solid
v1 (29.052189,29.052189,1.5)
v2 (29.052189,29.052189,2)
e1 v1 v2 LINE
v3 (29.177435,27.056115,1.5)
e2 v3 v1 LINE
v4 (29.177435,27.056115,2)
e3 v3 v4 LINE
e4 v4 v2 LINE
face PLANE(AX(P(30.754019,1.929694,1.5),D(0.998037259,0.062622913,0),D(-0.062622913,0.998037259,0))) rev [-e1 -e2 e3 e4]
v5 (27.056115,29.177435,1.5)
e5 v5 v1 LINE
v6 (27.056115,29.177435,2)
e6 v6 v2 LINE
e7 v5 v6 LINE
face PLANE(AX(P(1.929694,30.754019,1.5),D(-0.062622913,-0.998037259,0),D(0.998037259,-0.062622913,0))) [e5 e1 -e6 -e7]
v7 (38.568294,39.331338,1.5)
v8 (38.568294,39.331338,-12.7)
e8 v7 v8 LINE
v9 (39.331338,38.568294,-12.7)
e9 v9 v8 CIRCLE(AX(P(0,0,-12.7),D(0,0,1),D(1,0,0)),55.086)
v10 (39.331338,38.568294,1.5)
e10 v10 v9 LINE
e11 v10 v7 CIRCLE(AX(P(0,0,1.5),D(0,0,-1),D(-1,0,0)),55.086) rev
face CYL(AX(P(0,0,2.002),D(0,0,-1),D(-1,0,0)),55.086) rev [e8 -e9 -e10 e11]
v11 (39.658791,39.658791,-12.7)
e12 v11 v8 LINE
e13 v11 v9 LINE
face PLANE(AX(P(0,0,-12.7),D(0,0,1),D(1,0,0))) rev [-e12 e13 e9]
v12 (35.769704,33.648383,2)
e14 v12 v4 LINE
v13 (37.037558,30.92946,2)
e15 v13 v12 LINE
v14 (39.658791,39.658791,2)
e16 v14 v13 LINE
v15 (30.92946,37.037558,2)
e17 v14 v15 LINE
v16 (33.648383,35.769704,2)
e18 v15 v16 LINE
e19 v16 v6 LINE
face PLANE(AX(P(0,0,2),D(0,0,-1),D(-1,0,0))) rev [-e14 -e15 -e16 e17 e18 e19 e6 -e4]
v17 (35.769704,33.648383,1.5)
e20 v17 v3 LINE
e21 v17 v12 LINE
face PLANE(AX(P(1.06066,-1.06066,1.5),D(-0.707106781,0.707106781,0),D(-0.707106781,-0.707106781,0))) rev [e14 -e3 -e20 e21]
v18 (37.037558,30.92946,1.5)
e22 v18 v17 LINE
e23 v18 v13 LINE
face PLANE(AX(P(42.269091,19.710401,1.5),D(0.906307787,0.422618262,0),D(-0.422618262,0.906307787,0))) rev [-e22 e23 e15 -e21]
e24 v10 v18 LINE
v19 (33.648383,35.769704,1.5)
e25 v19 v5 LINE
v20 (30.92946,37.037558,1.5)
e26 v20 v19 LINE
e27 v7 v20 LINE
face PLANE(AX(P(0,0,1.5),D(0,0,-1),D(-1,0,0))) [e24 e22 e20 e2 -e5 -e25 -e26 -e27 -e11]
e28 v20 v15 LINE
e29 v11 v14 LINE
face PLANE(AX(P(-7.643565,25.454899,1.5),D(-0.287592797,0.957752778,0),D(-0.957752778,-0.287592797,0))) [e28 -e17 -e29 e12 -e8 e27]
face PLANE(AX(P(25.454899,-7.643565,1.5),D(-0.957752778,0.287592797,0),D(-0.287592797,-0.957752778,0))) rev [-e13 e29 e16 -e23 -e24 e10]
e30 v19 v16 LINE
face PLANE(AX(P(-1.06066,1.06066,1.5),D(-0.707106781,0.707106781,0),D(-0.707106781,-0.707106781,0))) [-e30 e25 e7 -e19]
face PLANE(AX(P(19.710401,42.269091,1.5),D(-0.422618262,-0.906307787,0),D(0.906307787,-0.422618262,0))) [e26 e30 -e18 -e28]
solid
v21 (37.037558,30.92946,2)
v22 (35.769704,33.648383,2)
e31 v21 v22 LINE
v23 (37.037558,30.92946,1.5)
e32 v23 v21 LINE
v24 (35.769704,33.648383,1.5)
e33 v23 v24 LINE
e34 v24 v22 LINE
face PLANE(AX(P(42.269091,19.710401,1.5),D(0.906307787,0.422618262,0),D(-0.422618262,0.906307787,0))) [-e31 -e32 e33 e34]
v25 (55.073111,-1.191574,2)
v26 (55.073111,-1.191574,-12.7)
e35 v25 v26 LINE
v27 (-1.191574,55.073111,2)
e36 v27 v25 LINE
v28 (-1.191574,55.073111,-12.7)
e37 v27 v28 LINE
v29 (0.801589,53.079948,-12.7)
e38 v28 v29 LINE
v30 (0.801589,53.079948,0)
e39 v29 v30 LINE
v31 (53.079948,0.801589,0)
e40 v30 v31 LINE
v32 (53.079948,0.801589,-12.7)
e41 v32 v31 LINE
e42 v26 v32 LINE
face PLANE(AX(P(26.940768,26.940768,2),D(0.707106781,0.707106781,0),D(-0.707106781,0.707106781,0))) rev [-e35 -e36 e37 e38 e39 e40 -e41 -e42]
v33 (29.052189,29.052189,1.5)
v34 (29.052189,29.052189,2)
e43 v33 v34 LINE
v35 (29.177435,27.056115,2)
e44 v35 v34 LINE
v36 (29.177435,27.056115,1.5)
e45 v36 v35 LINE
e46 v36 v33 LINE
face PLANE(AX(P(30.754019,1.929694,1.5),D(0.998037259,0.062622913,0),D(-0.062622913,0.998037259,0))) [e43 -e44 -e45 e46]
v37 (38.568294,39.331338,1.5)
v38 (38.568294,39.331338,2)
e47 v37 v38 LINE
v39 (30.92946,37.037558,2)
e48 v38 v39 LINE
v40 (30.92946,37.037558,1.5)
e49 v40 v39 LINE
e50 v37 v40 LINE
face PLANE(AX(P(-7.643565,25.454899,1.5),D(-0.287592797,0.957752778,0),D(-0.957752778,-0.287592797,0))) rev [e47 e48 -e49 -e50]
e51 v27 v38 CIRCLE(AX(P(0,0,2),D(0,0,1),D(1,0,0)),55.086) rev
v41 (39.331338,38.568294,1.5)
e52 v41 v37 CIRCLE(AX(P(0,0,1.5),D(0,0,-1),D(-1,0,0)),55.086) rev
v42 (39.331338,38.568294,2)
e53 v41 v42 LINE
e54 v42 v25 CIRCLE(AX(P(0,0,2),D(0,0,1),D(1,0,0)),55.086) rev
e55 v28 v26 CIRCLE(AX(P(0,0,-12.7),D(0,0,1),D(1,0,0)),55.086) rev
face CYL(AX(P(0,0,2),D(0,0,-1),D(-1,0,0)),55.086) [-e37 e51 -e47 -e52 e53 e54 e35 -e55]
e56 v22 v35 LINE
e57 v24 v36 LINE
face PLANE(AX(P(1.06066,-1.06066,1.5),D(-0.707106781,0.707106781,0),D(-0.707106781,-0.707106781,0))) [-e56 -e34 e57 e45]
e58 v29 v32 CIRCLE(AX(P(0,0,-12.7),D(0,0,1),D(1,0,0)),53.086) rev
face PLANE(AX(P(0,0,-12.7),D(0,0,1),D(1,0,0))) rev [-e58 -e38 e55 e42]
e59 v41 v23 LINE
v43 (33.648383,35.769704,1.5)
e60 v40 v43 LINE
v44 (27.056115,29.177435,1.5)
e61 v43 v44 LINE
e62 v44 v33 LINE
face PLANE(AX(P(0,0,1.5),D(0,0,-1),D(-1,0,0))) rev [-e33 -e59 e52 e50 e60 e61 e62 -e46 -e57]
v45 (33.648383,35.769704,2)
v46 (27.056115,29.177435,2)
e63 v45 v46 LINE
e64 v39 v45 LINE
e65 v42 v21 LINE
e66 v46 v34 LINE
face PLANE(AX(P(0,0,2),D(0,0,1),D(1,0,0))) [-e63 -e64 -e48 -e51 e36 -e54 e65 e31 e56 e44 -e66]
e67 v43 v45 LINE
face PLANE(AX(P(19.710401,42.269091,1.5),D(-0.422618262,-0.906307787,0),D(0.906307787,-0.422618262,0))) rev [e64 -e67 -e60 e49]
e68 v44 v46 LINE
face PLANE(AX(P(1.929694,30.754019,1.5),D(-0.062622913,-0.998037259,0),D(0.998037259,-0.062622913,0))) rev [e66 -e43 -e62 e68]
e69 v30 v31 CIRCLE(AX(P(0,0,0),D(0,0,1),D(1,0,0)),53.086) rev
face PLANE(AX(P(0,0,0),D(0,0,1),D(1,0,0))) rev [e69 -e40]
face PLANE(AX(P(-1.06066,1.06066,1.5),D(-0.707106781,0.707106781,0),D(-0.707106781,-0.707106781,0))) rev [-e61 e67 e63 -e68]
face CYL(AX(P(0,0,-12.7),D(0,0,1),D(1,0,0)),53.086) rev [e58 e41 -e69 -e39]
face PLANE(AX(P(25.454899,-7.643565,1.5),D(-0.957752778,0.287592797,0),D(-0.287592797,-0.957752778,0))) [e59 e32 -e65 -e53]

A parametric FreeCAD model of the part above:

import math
import FreeCAD as App
import Part
import Sketcher
Q = App.Units.Quantity


def add_polygon(sketch, points):
    """Adds a closed chain of lines whose ends are joined by coincident constraints."""
    first, n = sketch.GeometryCount, len(points)
    for a, b in zip(points, points[1:] + points[:1]):
        sketch.addGeometry(Part.LineSegment(App.Vector(*a, 0), App.Vector(*b, 0)), False)
    for i in range(n):
        sketch.addConstraint(Sketcher.Constraint("Coincident", first + i, 2, first + (i + 1) % n, 1))

doc = App.newDocument("Part")
params = doc.addObject("Spreadsheet::Sheet", "Params")
for row, (alias, value) in enumerate([
    ("pad1_length", "2 mm"),
    ("pad2_length", "12.7 mm"),
    ("sketch3_length", "2 mm"),
    ("sketch3_length2", "3 mm"),
    ("pocket1_length", "0.5 mm"),
    ("sketch4_length", "2 mm"),
    ("sketch4_length2", "3 mm"),
    ("pad3_length", "0.5 mm"),
    ("pad4_length", "14.2 mm"),
], start=1):
    params.set(f"A{row}", alias)
    params.set(f"B{row}", "=" + value)
    params.setAlias(f"B{row}", alias)

body = doc.addObject("PartDesign::Body", "Body")

sketch1 = body.newObject("Sketcher::SketchObject", "Sketch")
sketch1.AttachmentSupport = (doc.getObject("XY_Plane"), [""])
sketch1.MapMode = "FlatFace"
sketch1.addGeometry([
    Part.LineSegment(App.Vector(-1.191574, 55.073111, 0), App.Vector(55.073111, -1.191574, 0)),
    Part.ArcOfCircle(Part.Circle(App.Vector(0, 0, 0), App.Vector(0, 0, 1), 55.086), math.radians(-1.239471), math.radians(91.239471)),
], False)
sketch1.addConstraint([
    Sketcher.Constraint("Coincident", 0, 1, 1, 2),
    Sketcher.Constraint("Coincident", 1, 1, 0, 2),
    Sketcher.Constraint("Coincident", 1, 3, -1, 1),
    Sketcher.Constraint("Angle", 0, Q("-45 deg")),
    Sketcher.Constraint("Radius", 1, Q("55.086 mm")),
    Sketcher.Constraint("Distance", 0, Q("79.570281 mm")),
])
pad1 = body.newObject("PartDesign::Pad", "Pad")
pad1.Profile = sketch1
pad1.setExpression("Length", "Params.pad1_length")

sketch2 = body.newObject("Sketcher::SketchObject", "Sketch001")
sketch2.AttachmentSupport = (doc.getObject("XY_Plane"), [""])
sketch2.MapMode = "FlatFace"
sketch2.addGeometry([
    Part.LineSegment(App.Vector(-1.191574, 55.073111, 0), App.Vector(0.801589, 53.079948, 0)),
    Part.ArcOfCircle(Part.Circle(App.Vector(0, 0, 0), App.Vector(0, 0, 1), 53.086), math.radians(46.757193), math.radians(89.134811)),
    Part.ArcOfCircle(Part.Circle(App.Vector(0, 0, 0), App.Vector(0, 0, 1), 53.086), math.radians(43.242807), math.radians(46.757193)),
    Part.ArcOfCircle(Part.Circle(App.Vector(0, 0, 0), App.Vector(0, 0, 1), 53.086), math.radians(0.865189), math.radians(43.242807)),
    Part.LineSegment(App.Vector(53.079948, 0.801589, 0), App.Vector(55.073111, -1.191574, 0)),
    Part.ArcOfCircle(Part.Circle(App.Vector(0, 0, 0), App.Vector(0, 0, 1), 55.086), math.radians(-1.239471), math.radians(44.438793)),
    Part.ArcOfCircle(Part.Circle(App.Vector(-0.000012, -0.000012, 0), App.Vector(0, 0, 1), 55.086017), math.radians(44.438793), math.radians(45.561207)),
    Part.ArcOfCircle(Part.Circle(App.Vector(0, 0, 0), App.Vector(0, 0, 1), 55.086), math.radians(45.561207), math.radians(91.239471)),
], False)
sketch2.addConstraint([
    Sketcher.Constraint("Coincident", 0, 2, 1, 2),
    Sketcher.Constraint("Tangent", 1, 1, 2, 2),
    Sketcher.Constraint("Tangent", 2, 1, 3, 2),
    Sketcher.Constraint("Coincident", 3, 1, 4, 1),
    Sketcher.Constraint("Coincident", 4, 2, 5, 1),
    Sketcher.Constraint("Tangent", 5, 2, 6, 1),
    Sketcher.Constraint("Tangent", 6, 2, 7, 1),
    Sketcher.Constraint("Coincident", 7, 2, 0, 1),
    Sketcher.Constraint("Coincident", 1, 3, -1, 1),
    Sketcher.Constraint("Coincident", 3, 3, -1, 1),
    Sketcher.Constraint("Coincident", 5, 3, -1, 1),
    Sketcher.Constraint("Coincident", 7, 3, -1, 1),
    Sketcher.Constraint("Parallel", 0, 4),
    Sketcher.Constraint("Equal", 0, 4),
    Sketcher.Constraint("Angle", 0, Q("-45 deg")),
    Sketcher.Constraint("Radius", 1, Q("53.086 mm")),
    Sketcher.Constraint("Radius", 5, Q("55.086 mm")),
    Sketcher.Constraint("Distance", 0, Q("2.818758 mm")),
    Sketcher.Constraint("DistanceX", -1, 1, 1, 1, Q("36.36877 mm")),
    Sketcher.Constraint("DistanceY", -1, 1, 2, 1, Q("36.36877 mm")),
    Sketcher.Constraint("DistanceX", 2, 1, 5, 2, Q("0.66047 mm")),
    Sketcher.Constraint("DistanceY", 1, 1, 6, 2, Q("0.66047 mm")),
])
pad2 = body.newObject("PartDesign::Pad", "Pad001")
pad2.Profile = sketch2
pad2.setExpression("Length", "Params.pad2_length")
pad2.Reversed = True

sketch3 = body.newObject("Sketcher::SketchObject", "Sketch002")
sketch3.AttachmentSupport = (doc.getObject("XY_Plane"), [""])
sketch3.MapMode = "FlatFace"
sketch3.AttachmentOffset = App.Placement(App.Vector(0, 0, 1.5), App.Rotation())
add_polygon(sketch3, [(33.648383, 35.769704), (27.056115, 29.177435), (29.052189, 29.052189), (29.177435, 27.056115), (35.769704, 33.648383), (37.037558, 30.92946), (39.658791, 39.658791), (30.92946, 37.037558)])
sketch3.addConstraint([
    Sketcher.Constraint("Parallel", 0, 3),
    Sketcher.Constraint("Equal", 1, 2),
    Sketcher.Constraint("Equal", 0, 3),
    Sketcher.Constraint("Equal", 5, 6),
    Sketcher.Constraint("Equal", 4, 7),
    Sketcher.Constraint("Angle", 0, Q("-135 deg")),
    Sketcher.Constraint("Angle", 4, Q("-65 deg")),
    Sketcher.Constraint("Angle", 7, Q("-25 deg")),
    Sketcher.Constraint("Distance", 1, Q("2 mm")),
    Sketcher.Constraint("Distance", 4, Q("3 mm")),
    Sketcher.Constraint("DistanceX", 1, 2, 5, 2, Q("10.606602 mm")),
    Sketcher.Constraint("DistanceY", 1, 2, 5, 2, Q("10.606602 mm")),
    Sketcher.Constraint("DistanceX", 6, 2, 4, 2, Q("6.108098 mm")),
    Sketcher.Constraint("Distance", 5, Q("9.114389 mm")),
    Sketcher.Constraint("DistanceX", -1, 1, 1, 2, Q("29.052189 mm")),
    Sketcher.Constraint("DistanceY", -1, 1, 1, 2, Q("29.052189 mm")),
])
sketch3.setExpression("Constraints[16]", "Params.sketch3_length")
sketch3.setExpression("Constraints[17]", "Params.sketch3_length2")
pocket1 = body.newObject("PartDesign::Pocket", "Pocket")
pocket1.Profile = sketch3
pocket1.setExpression("Length", "Params.pocket1_length")
pocket1.Reversed = True
body2 = doc.addObject("PartDesign::Body", "Body001")

sketch4 = body2.newObject("Sketcher::SketchObject", "Sketch003")
sketch4.AttachmentSupport = (doc.getObject("XY_Plane001"), [""])
sketch4.MapMode = "FlatFace"
sketch4.AttachmentOffset = App.Placement(App.Vector(0, 0, 1.5), App.Rotation())
add_polygon(sketch4, [(33.648383, 35.769704), (27.056115, 29.177435), (29.052189, 29.052189), (29.177435, 27.056115), (35.769704, 33.648383), (37.037558, 30.92946), (39.658791, 39.658791), (30.92946, 37.037558)])
sketch4.addConstraint([
    Sketcher.Constraint("Parallel", 0, 3),
    Sketcher.Constraint("Equal", 1, 2),
    Sketcher.Constraint("Equal", 0, 3),
    Sketcher.Constraint("Equal", 5, 6),
    Sketcher.Constraint("Equal", 4, 7),
    Sketcher.Constraint("Angle", 0, Q("-135 deg")),
    Sketcher.Constraint("Angle", 4, Q("-65 deg")),
    Sketcher.Constraint("Angle", 7, Q("-25 deg")),
    Sketcher.Constraint("Distance", 1, Q("2 mm")),
    Sketcher.Constraint("Distance", 4, Q("3 mm")),
    Sketcher.Constraint("DistanceX", 1, 2, 5, 2, Q("10.606602 mm")),
    Sketcher.Constraint("DistanceY", 1, 2, 5, 2, Q("10.606602 mm")),
    Sketcher.Constraint("DistanceX", 6, 2, 4, 2, Q("6.108098 mm")),
    Sketcher.Constraint("Distance", 5, Q("9.114389 mm")),
    Sketcher.Constraint("DistanceX", -1, 1, 1, 2, Q("29.052189 mm")),
    Sketcher.Constraint("DistanceY", -1, 1, 1, 2, Q("29.052189 mm")),
])
sketch4.setExpression("Constraints[16]", "Params.sketch4_length")
sketch4.setExpression("Constraints[17]", "Params.sketch4_length2")
pad3 = body2.newObject("PartDesign::Pad", "Pad002")
pad3.Profile = sketch4
pad3.setExpression("Length", "Params.pad3_length")

sketch5 = body2.newObject("Sketcher::SketchObject", "Sketch004")
sketch5.AttachmentSupport = (doc.getObject("XY_Plane001"), [""])
sketch5.MapMode = "FlatFace"
sketch5.AttachmentOffset = App.Placement(App.Vector(0, 0, -12.7), App.Rotation())
sketch5.addGeometry([
    Part.LineSegment(App.Vector(39.658791, 39.658791, 0), App.Vector(38.568294, 39.331338, 0)),
    Part.ArcOfCircle(Part.Circle(App.Vector(-0.000012, -0.000012, 0), App.Vector(0, 0, 1), 55.086017), math.radians(44.438793), math.radians(45.561207)),
    Part.LineSegment(App.Vector(39.331338, 38.568294, 0), App.Vector(39.658791, 39.658791, 0)),
], False)
sketch5.addConstraint([
    Sketcher.Constraint("Coincident", 0, 2, 1, 2),
    Sketcher.Constraint("Coincident", 1, 1, 2, 1),
    Sketcher.Constraint("Coincident", 2, 2, 0, 1),
    Sketcher.Constraint("Equal", 0, 2),
    Sketcher.Constraint("Radius", 1, Q("55.086017 mm")),
    Sketcher.Constraint("Distance", 0, Q("1.1386 mm")),
    Sketcher.Constraint("DistanceX", -1, 1, 2, 2, Q("39.658791 mm")),
    Sketcher.Constraint("DistanceY", -1, 1, 2, 2, Q("39.658791 mm")),
    Sketcher.Constraint("DistanceY", 1, 3, 0, 2, Q("39.33135 mm")),
    Sketcher.Constraint("DistanceX", 1, 3, 1, 1, Q("39.33135 mm")),
])
pad4 = body2.newObject("PartDesign::Pad", "Pad003")
pad4.Profile = sketch5
pad4.setExpression("Length", "Params.pad4_length")

doc.recompute()
